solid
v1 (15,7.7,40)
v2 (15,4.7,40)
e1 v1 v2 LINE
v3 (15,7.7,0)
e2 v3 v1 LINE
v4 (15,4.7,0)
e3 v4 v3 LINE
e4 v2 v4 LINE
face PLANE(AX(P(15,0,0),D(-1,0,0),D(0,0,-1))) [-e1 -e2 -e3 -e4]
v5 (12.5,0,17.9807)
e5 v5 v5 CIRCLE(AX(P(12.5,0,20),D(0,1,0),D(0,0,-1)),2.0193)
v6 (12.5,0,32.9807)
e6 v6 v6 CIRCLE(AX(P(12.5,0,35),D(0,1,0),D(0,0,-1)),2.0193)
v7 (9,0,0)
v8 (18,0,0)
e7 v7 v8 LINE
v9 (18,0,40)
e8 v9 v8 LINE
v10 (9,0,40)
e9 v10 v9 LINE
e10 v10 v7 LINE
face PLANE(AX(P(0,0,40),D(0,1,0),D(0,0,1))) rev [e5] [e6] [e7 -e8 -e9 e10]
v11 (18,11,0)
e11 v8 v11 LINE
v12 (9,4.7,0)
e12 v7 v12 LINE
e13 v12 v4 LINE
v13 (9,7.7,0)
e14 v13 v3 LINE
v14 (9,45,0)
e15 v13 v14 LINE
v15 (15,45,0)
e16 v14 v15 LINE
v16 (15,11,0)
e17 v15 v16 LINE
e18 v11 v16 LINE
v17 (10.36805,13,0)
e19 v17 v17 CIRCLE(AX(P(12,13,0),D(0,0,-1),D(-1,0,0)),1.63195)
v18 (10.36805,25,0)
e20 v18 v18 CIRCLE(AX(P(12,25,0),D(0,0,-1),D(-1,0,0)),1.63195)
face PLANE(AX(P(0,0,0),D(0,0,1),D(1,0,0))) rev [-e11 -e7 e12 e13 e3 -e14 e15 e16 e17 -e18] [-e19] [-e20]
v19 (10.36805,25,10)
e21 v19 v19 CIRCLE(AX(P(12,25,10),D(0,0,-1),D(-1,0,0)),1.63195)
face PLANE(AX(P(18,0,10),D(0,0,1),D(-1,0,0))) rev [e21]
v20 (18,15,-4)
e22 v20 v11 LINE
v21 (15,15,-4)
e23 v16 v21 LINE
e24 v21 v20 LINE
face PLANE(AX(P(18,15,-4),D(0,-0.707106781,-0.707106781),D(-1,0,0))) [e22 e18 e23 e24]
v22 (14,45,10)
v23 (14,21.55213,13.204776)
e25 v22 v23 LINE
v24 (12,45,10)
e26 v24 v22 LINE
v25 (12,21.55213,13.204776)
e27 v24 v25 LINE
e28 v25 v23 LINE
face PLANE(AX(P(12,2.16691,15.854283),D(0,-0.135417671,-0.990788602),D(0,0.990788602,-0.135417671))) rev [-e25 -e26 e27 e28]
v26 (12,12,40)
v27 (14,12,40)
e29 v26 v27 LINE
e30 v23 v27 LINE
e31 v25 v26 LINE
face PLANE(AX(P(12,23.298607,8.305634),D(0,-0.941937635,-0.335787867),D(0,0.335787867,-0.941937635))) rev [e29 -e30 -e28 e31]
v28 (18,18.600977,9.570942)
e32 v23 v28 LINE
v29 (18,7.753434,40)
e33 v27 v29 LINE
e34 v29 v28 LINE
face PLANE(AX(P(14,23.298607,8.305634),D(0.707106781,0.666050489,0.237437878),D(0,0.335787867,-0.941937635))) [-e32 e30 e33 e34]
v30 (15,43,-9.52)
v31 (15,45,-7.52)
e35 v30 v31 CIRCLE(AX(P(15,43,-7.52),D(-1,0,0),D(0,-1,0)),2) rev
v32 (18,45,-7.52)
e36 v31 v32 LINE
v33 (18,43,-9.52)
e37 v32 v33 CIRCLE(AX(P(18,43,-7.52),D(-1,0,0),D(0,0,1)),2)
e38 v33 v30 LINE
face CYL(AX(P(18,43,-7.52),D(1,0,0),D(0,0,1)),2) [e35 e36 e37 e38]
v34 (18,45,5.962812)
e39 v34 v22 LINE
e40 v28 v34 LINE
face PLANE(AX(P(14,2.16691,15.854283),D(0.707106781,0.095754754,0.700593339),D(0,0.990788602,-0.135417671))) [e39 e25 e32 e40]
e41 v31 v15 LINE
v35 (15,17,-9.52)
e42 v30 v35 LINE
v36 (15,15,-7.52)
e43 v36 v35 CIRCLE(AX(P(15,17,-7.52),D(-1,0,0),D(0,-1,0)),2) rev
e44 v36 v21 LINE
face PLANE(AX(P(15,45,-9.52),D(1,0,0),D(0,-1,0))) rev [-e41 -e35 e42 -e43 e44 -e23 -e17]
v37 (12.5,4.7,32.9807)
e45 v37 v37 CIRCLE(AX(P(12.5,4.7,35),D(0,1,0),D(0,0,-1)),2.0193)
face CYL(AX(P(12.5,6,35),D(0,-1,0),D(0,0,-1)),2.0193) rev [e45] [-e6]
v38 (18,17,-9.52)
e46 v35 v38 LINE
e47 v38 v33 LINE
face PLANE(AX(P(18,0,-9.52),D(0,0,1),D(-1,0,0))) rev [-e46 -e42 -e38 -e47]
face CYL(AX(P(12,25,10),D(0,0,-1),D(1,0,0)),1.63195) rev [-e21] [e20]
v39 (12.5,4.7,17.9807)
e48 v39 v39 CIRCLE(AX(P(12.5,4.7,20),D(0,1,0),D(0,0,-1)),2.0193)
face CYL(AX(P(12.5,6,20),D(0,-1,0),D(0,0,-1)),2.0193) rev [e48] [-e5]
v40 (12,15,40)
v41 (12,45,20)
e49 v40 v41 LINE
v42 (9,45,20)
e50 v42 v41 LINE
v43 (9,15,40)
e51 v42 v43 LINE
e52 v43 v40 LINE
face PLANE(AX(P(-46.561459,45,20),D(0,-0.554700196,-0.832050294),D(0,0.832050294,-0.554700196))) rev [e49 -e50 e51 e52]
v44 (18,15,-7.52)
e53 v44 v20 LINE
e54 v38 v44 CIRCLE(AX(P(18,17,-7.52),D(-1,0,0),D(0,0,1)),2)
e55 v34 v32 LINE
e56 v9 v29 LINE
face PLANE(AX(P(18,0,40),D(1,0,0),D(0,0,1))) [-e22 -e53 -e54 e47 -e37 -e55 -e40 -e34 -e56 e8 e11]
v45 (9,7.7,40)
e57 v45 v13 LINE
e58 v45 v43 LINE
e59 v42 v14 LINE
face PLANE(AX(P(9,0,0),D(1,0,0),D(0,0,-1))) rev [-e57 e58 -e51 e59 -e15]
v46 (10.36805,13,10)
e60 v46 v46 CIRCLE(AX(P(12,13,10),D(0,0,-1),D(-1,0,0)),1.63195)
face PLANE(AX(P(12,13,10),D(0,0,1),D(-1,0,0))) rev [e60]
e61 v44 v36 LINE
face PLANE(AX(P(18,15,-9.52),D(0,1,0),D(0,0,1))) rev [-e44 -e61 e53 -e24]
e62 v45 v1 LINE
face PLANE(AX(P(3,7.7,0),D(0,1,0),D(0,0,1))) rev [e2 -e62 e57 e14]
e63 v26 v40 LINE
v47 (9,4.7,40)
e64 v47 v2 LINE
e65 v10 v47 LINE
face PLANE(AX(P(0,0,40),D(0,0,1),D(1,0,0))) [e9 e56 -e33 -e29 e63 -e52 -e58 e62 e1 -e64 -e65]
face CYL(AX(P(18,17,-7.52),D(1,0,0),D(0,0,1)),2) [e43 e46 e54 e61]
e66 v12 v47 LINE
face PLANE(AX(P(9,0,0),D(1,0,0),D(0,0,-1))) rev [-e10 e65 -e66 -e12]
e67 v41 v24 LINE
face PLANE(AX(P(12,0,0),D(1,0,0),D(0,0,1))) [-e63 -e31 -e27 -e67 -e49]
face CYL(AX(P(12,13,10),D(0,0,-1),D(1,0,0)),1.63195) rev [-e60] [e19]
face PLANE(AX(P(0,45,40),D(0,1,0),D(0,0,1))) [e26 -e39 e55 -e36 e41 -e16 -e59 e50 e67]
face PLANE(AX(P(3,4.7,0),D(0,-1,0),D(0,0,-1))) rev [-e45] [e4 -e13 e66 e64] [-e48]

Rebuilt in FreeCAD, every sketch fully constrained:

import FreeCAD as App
import Part
import Sketcher
from FreeCAD import Vector
Q = App.Units.Quantity


def edges_at(feature, points):
    """Names of the edges that pass closest to the given points."""
    edges = feature.Shape.Edges
    near = lambda p: min(range(len(edges)), key=lambda i: edges[i].distToShape(Part.Vertex(*p))[0])
    return sorted({f"Edge{near(p) + 1}" for p in points})

doc = App.newDocument("Part")
body = doc.addObject("PartDesign::Body", "Body")

# Sketch on XY plane
sketch1 = body.newObject("Sketcher::SketchObject", "Sketch")
sketch1.AttachmentSupport = (doc.getObject("XY_Plane"), [""])
sketch1.MapMode = "FlatFace"
sketch1.addGeometry([
    Part.LineSegment(Vector(0, 45, 0), Vector(0, 0, 0)),
    Part.LineSegment(Vector(0, 0, 0), Vector(9, 0, 0)),
    Part.LineSegment(Vector(9, 0, 0), Vector(9, 45, 0)),
    Part.LineSegment(Vector(9, 45, 0), Vector(0, 45, 0)),
], False)
sketch1.addConstraint([
    Sketcher.Constraint("Coincident", 0, 2, 1, 1),
    Sketcher.Constraint("Coincident", 1, 2, 2, 1),
    Sketcher.Constraint("Coincident", 2, 2, 3, 1),
    Sketcher.Constraint("Coincident", 3, 2, 0, 1),
    Sketcher.Constraint("Vertical", 0),
    Sketcher.Constraint("Horizontal", 1),
    Sketcher.Constraint("Vertical", 2),
    Sketcher.Constraint("Horizontal", 3),
    Sketcher.Constraint("Coincident", 0, 2, -1, 1),
    Sketcher.Constraint("DistanceX", 1, 1, 1, 2, Q("9 mm")),
    Sketcher.Constraint("DistanceY", 0, 2, 0, 1, Q("45 mm")),
])
pad1 = body.newObject("PartDesign::Pad", "Pad")
pad1.Profile = sketch1
pad1.Length = 40

# Sketch on XY plane
sketch2 = body.newObject("Sketcher::SketchObject", "Sketch001")
sketch2.AttachmentSupport = (doc.getObject("XY_Plane"), [""])
sketch2.MapMode = "FlatFace"
sketch2.addGeometry([
    Part.Circle(Vector(6, 25, 0), Vector(0, 0, 1), 1.6),
    Part.Circle(Vector(6, 13, 0), Vector(0, 0, 1), 1.6),
], False)
sketch2.addConstraint([
    Sketcher.Constraint("Equal", 0, 1),
    Sketcher.Constraint("Vertical", 0, 3, 1, 3),
    Sketcher.Constraint("DistanceX", -1, 1, 0, 3, Q("6 mm")),
    Sketcher.Constraint("DistanceY", -1, 1, 0, 3, Q("25 mm")),
    Sketcher.Constraint("DistanceY", -1, 1, 1, 3, Q("13 mm")),
    Sketcher.Constraint("Diameter", 0, Q("3.2639 mm")),
])
pocket1 = body.newObject("PartDesign::Pocket", "Pocket")
pocket1.Profile = sketch2
pocket1.Length = 10
pocket1.Reversed = True

# Sketch on YZ plane
sketch3 = body.newObject("Sketcher::SketchObject", "Sketch002")
sketch3.AttachmentSupport = (doc.getObject("YZ_Plane"), [""])
sketch3.MapMode = "FlatFace"
sketch3.AttachmentOffset = App.Placement(Vector(0, 0, 9), App.Rotation())
sketch3.addGeometry([
    Part.LineSegment(Vector(7.7, 40, 0), Vector(4.7, 40, 0)),
    Part.LineSegment(Vector(4.7, 40, 0), Vector(4.7, 0, 0)),
    Part.LineSegment(Vector(4.7, 0, 0), Vector(7.7, 0, 0)),
    Part.LineSegment(Vector(7.7, 0, 0), Vector(7.7, 40, 0)),
], False)
sketch3.addConstraint([
    Sketcher.Constraint("Coincident", 0, 2, 1, 1),
    Sketcher.Constraint("Coincident", 1, 2, 2, 1),
    Sketcher.Constraint("Coincident", 2, 2, 3, 1),
    Sketcher.Constraint("Coincident", 3, 2, 0, 1),
    Sketcher.Constraint("Horizontal", 0),
    Sketcher.Constraint("Vertical", 1),
    Sketcher.Constraint("Horizontal", 2),
    Sketcher.Constraint("Vertical", 3),
    Sketcher.Constraint("PointOnObject", 1, 2, -1),
    Sketcher.Constraint("DistanceX", 0, 2, 0, 1, Q("3 mm")),
    Sketcher.Constraint("DistanceY", 1, 2, 1, 1, Q("40 mm")),
    Sketcher.Constraint("DistanceX", -1, 1, 0, 2, Q("4.7 mm")),
])
pocket2 = body.newObject("PartDesign::Pocket", "Pocket001")
pocket2.Profile = sketch3
pocket2.Length = 6

# Sketch on YZ plane
sketch4 = body.newObject("Sketcher::SketchObject", "Sketch003")
sketch4.AttachmentSupport = (doc.getObject("YZ_Plane"), [""])
sketch4.MapMode = "FlatFace"
sketch4.AttachmentOffset = App.Placement(Vector(0, 0, 9), App.Rotation())
sketch4.addGeometry([
    Part.LineSegment(Vector(15, 40, 0), Vector(45, 20, 0)),
    Part.LineSegment(Vector(45, 20, 0), Vector(52, 48, 0)),
    Part.LineSegment(Vector(52, 48, 0), Vector(15, 40, 0)),
], False)
sketch4.addConstraint([
    Sketcher.Constraint("Coincident", 0, 2, 1, 1),
    Sketcher.Constraint("Coincident", 1, 2, 2, 1),
    Sketcher.Constraint("Coincident", 2, 2, 0, 1),
    Sketcher.Constraint("DistanceX", -1, 1, 0, 2, Q("45 mm")),
    Sketcher.Constraint("DistanceY", -1, 1, 0, 2, Q("20 mm")),
    Sketcher.Constraint("DistanceX", -1, 1, 2, 2, Q("15 mm")),
    Sketcher.Constraint("DistanceY", -1, 1, 2, 2, Q("40 mm")),
    Sketcher.Constraint("Distance", 1, Q("29.209245 mm")),
    Sketcher.Constraint("Distance", 2, Q("37.852277 mm")),
])
pocket3 = body.newObject("PartDesign::Pocket", "Pocket002")
pocket3.Profile = sketch4
pocket3.Length = 9

# Sketch on YZ plane
sketch5 = body.newObject("Sketcher::SketchObject", "Sketch004")
sketch5.AttachmentSupport = (doc.getObject("YZ_Plane"), [""])
sketch5.MapMode = "FlatFace"
sketch5.addGeometry([
    Part.LineSegment(Vector(45, 20, 0), Vector(45, 10, 0)),  # 0
    Part.LineSegment(Vector(45, 10, 0), Vector(21.6, 13.2, 0)),  # 1
    Part.LineSegment(Vector(21.6, 13.2, 0), Vector(12, 40, 0)),  # 2
    Part.LineSegment(Vector(12, 40, 0), Vector(15, 40, 0)),  # 3
    Part.LineSegment(Vector(15, 40, 0), Vector(45, 20, 0)),  # 4
], False)
sketch5.addConstraint([
    Sketcher.Constraint("Coincident", 0, 2, 1, 1),
    Sketcher.Constraint("Coincident", 1, 2, 2, 1),
    Sketcher.Constraint("Coincident", 2, 2, 3, 1),
    Sketcher.Constraint("Coincident", 3, 2, 4, 1),
    Sketcher.Constraint("Coincident", 4, 2, 0, 1),
    Sketcher.Constraint("Vertical", 0),
    Sketcher.Constraint("Horizontal", 3),
    Sketcher.Constraint("DistanceX", 3, 1, 3, 2, Q("3 mm")),
    Sketcher.Constraint("DistanceY", 0, 2, 0, 1, Q("10 mm")),
    Sketcher.Constraint("DistanceX", -1, 1, 0, 2, Q("45 mm")),
    Sketcher.Constraint("DistanceY", -1, 1, 0, 2, Q("10 mm")),
    Sketcher.Constraint("DistanceX", -1, 1, 2, 2, Q("12 mm")),
    Sketcher.Constraint("DistanceY", -1, 1, 2, 2, Q("40 mm")),
    Sketcher.Constraint("Distance", 2, Q("28.446919 mm")),
    Sketcher.Constraint("DistanceX", -1, 1, 1, 2, Q("21.55213 mm")),
])
pocket4 = body.newObject("PartDesign::Pocket", "Pocket003")
pocket4.Profile = sketch5
pocket4.Length = 6
pocket4.Reversed = True
doc.recompute()

chamfer = body.newObject("PartDesign::Chamfer", "Chamfer")
chamfer.Base = (pocket4, edges_at(pocket4, [(0, 33.276, 11.602), (0, 16.776, 26.602)]))
chamfer.Size = 4

# Sketch on XZ plane
sketch6 = body.newObject("Sketcher::SketchObject", "Sketch005")
sketch6.AttachmentSupport = (doc.getObject("XZ_Plane"), [""])
sketch6.MapMode = "FlatFace"
sketch6.addGeometry([
    Part.Circle(Vector(5.5, 35, 0), Vector(0, 0, 1), 2),
    Part.Circle(Vector(5.5, 20, 0), Vector(0, 0, 1), 2),
], False)
sketch6.addConstraint([
    Sketcher.Constraint("Equal", 0, 1),
    Sketcher.Constraint("Vertical", 0, 3, 1, 3),
    Sketcher.Constraint("DistanceY", -1, 1, 0, 3, Q("35 mm")),
    Sketcher.Constraint("DistanceY", -1, 1, 1, 3, Q("20 mm")),
    Sketcher.Constraint("Diameter", 0, Q("4.0386 mm")),
    Sketcher.Constraint("DistanceX", -1, 1, 0, 3, Q("5.5 mm")),
])
pocket5 = body.newObject("PartDesign::Pocket", "Pocket004")
pocket5.Profile = sketch6
pocket5.Length = 6

# Sketch on XY plane
sketch7 = body.newObject("Sketcher::SketchObject", "Sketch006")
sketch7.AttachmentSupport = (doc.getObject("XY_Plane"), [""])
sketch7.MapMode = "FlatFace"
sketch7.addGeometry([
    Part.LineSegment(Vector(3, 45, 0), Vector(3, 15, 0)),
    Part.LineSegment(Vector(3, 15, 0), Vector(0, 15, 0)),
    Part.LineSegment(Vector(0, 15, 0), Vector(0, 45, 0)),
    Part.LineSegment(Vector(0, 45, 0), Vector(3, 45, 0)),
], False)
sketch7.addConstraint([
    Sketcher.Constraint("Coincident", 0, 2, 1, 1),
    Sketcher.Constraint("Coincident", 1, 2, 2, 1),
    Sketcher.Constraint("Coincident", 2, 2, 3, 1),
    Sketcher.Constraint("Coincident", 3, 2, 0, 1),
    Sketcher.Constraint("Vertical", 0),
    Sketcher.Constraint("Horizontal", 1),
    Sketcher.Constraint("Vertical", 2),
    Sketcher.Constraint("Horizontal", 3),
    Sketcher.Constraint("PointOnObject", 1, 2, -2),
    Sketcher.Constraint("DistanceX", 1, 2, 1, 1, Q("3 mm")),
    Sketcher.Constraint("DistanceY", 0, 2, 0, 1, Q("30 mm")),
    Sketcher.Constraint("DistanceY", -1, 1, 0, 2, Q("15 mm")),
])
pad2 = body.newObject("PartDesign::Pad", "Pad001")
pad2.Profile = sketch7
pad2.Length = 9.52
pad2.Reversed = True
doc.recompute()

chamfer2 = body.newObject("PartDesign::Chamfer", "Chamfer001")
chamfer2.Base = (pad2, edges_at(pad2, [(1.5, 15, 0)]))
chamfer2.Size = 4
doc.recompute()

fillet = body.newObject("PartDesign::Fillet", "Fillet")
fillet.Base = (chamfer2, edges_at(chamfer2, [(1.5, 45, -9.52), (1.5, 15, -9.52)]))
fillet.Radius = 2
body2 = doc.addObject("PartDesign::Body", "Body001")
doc.recompute()

body2.BaseFeature = body
doc.recompute()

mirroring = doc.addObject("Part::Mirroring", "Mirroring")
mirroring.Source = body
mirroring.Base = Vector(9, 0, 40)
mirroring.Normal = Vector(-1, 0, 0)
body3 = doc.addObject("PartDesign::Body", "Body002")
body3.BaseFeature = mirroring
boolean = body2.newObject("PartDesign::Boolean", "Boolean")
boolean.Type = "Fuse"
boolean.addObjects([body3])
doc.recompute()

# Sketch on YZ plane
sketch8 = body2.newObject("Sketcher::SketchObject", "Sketch007")
sketch8.AttachmentSupport = (doc.getObject("YZ_Plane001"), [""])
sketch8.MapMode = "FlatFace"
sketch8.addGeometry([
    Part.LineSegment(Vector(51, 50, 0), Vector(-11, 50, 0)),
    Part.LineSegment(Vector(-11, 50, 0), Vector(-11, -24, 0)),
    Part.LineSegment(Vector(-11, -24, 0), Vector(51, -24, 0)),
    Part.LineSegment(Vector(51, -24, 0), Vector(51, 50, 0)),
], False)
sketch8.addConstraint([
    Sketcher.Constraint("Coincident", 0, 2, 1, 1),
    Sketcher.Constraint("Coincident", 1, 2, 2, 1),
    Sketcher.Constraint("Coincident", 2, 2, 3, 1),
    Sketcher.Constraint("Coincident", 3, 2, 0, 1),
    Sketcher.Constraint("Horizontal", 0),
    Sketcher.Constraint("Vertical", 1),
    Sketcher.Constraint("Horizontal", 2),
    Sketcher.Constraint("Vertical", 3),
    Sketcher.Constraint("DistanceX", 0, 2, 0, 1, Q("61.996598 mm")),
    Sketcher.Constraint("DistanceY", 1, 2, 1, 1, Q("73.917675 mm")),
    Sketcher.Constraint("DistanceX", 0, 2, -1, 1, Q("11.118126 mm")),
    Sketcher.Constraint("DistanceY", -1, 1, 0, 2, Q("49.622377 mm")),
])
pocket6 = body2.newObject("PartDesign::Pocket", "Pocket005")
pocket6.Profile = sketch8
pocket6.Length = 9
pocket6.Reversed = True
mirroring.Visibility = False

doc.recompute()
